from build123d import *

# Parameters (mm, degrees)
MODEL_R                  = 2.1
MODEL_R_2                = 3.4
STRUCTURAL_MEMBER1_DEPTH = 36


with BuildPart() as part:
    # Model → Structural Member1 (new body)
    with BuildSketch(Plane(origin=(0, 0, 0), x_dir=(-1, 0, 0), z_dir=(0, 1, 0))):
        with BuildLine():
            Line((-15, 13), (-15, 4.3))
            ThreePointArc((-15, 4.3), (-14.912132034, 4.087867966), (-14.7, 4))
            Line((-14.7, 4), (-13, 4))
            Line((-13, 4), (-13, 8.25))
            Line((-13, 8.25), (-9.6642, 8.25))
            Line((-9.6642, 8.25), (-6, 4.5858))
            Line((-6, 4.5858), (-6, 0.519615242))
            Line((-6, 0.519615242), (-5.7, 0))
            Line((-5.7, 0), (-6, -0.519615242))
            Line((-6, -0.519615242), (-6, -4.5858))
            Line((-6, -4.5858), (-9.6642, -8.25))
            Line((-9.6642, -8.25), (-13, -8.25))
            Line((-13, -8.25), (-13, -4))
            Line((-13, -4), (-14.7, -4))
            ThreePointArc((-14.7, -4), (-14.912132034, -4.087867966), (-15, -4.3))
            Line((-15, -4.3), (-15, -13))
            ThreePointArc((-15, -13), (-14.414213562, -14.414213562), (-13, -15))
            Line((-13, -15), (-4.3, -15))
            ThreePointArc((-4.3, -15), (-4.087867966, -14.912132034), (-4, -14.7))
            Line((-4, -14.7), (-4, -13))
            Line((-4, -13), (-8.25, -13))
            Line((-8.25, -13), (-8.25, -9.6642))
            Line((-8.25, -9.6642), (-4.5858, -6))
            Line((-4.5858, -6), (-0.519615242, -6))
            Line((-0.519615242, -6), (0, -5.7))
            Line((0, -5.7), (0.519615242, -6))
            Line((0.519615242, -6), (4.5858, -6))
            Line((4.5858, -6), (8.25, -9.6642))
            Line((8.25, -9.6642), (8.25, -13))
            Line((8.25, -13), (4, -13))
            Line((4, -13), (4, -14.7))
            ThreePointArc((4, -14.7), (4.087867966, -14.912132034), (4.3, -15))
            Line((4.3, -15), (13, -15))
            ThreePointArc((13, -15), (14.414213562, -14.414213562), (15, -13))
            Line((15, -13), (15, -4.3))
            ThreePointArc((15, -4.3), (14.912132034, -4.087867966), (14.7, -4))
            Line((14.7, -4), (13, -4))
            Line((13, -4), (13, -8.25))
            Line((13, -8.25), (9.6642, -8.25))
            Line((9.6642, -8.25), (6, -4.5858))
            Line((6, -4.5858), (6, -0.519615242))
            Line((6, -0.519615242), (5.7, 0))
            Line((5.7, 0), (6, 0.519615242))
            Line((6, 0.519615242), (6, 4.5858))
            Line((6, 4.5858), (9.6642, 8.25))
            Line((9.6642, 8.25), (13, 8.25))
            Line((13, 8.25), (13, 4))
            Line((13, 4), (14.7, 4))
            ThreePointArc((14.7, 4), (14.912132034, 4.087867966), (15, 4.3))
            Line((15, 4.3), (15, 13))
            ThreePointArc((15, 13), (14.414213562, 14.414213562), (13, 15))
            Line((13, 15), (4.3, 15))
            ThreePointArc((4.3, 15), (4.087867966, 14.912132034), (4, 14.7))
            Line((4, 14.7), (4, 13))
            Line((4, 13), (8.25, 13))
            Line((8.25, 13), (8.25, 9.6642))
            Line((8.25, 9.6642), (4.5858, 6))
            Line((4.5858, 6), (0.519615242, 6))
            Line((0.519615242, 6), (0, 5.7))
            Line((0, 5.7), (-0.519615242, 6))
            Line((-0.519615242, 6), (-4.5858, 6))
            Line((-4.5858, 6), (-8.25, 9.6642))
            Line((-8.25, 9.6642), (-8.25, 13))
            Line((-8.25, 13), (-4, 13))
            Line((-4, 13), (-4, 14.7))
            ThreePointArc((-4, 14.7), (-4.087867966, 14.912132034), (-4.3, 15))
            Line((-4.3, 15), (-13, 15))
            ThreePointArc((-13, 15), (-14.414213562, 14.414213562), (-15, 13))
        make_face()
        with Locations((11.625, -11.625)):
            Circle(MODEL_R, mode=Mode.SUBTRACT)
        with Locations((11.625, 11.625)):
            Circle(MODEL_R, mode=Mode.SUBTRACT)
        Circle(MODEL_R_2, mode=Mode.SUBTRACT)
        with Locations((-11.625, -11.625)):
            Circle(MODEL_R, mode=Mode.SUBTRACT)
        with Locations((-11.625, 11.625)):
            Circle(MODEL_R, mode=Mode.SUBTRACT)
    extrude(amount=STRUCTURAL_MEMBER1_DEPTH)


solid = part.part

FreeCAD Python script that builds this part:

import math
import FreeCAD as App
import Part
import Sketcher
from FreeCAD import Vector
Q = App.Units.Quantity

doc = App.newDocument("Part")
body = doc.addObject("PartDesign::Body", "Body")

sketch1 = doc.addObject("Sketcher::SketchObject", "Sketch")
body.addObject(sketch1)
sketch1.AttachmentSupport = (doc.XZ_Plane, [""])
sketch1.MapMode = "FlatFace"
sketch1.addGeometry([
    Part.LineSegment(Vector(15, 13, 0), Vector(15, 4.3, 0)),
    Part.ArcOfCircle(Part.Circle(Vector(14.7, 4.3, 0), Vector(0, 0, 1), 0.3), math.radians(-90), math.radians(0)),
    Part.LineSegment(Vector(14.7, 4, 0), Vector(13, 4, 0)),
    Part.LineSegment(Vector(13, 4, 0), Vector(13, 8.25, 0)),
    Part.LineSegment(Vector(13, 8.25, 0), Vector(9.66, 8.25, 0)),
    Part.LineSegment(Vector(9.66, 8.25, 0), Vector(6, 4.59, 0)),
    Part.LineSegment(Vector(6, 4.59, 0), Vector(6, 0.52, 0)),
    Part.LineSegment(Vector(6, 0.52, 0), Vector(5.7, 0, 0)),
    Part.LineSegment(Vector(5.7, 0, 0), Vector(6, -0.52, 0)),
    Part.LineSegment(Vector(6, -0.52, 0), Vector(6, -4.59, 0)),
    Part.LineSegment(Vector(6, -4.59, 0), Vector(9.66, -8.25, 0)),
    Part.LineSegment(Vector(9.66, -8.25, 0), Vector(13, -8.25, 0)),
    Part.LineSegment(Vector(13, -8.25, 0), Vector(13, -4, 0)),
    Part.LineSegment(Vector(13, -4, 0), Vector(14.7, -4, 0)),
    Part.ArcOfCircle(Part.Circle(Vector(14.7, -4.3, 0), Vector(0, 0, 1), 0.3), math.radians(0), math.radians(90)),
    Part.LineSegment(Vector(15, -4.3, 0), Vector(15, -13, 0)),
    Part.ArcOfCircle(Part.Circle(Vector(13, -13, 0), Vector(0, 0, 1), 2), math.radians(-90), math.radians(0)),
    Part.LineSegment(Vector(13, -15, 0), Vector(4.3, -15, 0)),
    Part.ArcOfCircle(Part.Circle(Vector(4.3, -14.7, 0), Vector(0, 0, 1), 0.3), math.radians(-180), math.radians(-90)),
    Part.LineSegment(Vector(4, -14.7, 0), Vector(4, -13, 0)),
    Part.LineSegment(Vector(4, -13, 0), Vector(8.25, -13, 0)),
    Part.LineSegment(Vector(8.25, -13, 0), Vector(8.25, -9.66, 0)),
    Part.LineSegment(Vector(8.25, -9.66, 0), Vector(4.59, -6, 0)),
    Part.LineSegment(Vector(4.59, -6, 0), Vector(0.52, -6, 0)),
    Part.LineSegment(Vector(0.52, -6, 0), Vector(0, -5.7, 0)),
    Part.LineSegment(Vector(0, -5.7, 0), Vector(-0.52, -6, 0)),
    Part.LineSegment(Vector(-0.52, -6, 0), Vector(-4.59, -6, 0)),
    Part.LineSegment(Vector(-4.59, -6, 0), Vector(-8.25, -9.66, 0)),
    Part.LineSegment(Vector(-8.25, -9.66, 0), Vector(-8.25, -13, 0)),
    Part.LineSegment(Vector(-8.25, -13, 0), Vector(-4, -13, 0)),
    Part.LineSegment(Vector(-4, -13, 0), Vector(-4, -14.7, 0)),
    Part.ArcOfCircle(Part.Circle(Vector(-4.3, -14.7, 0), Vector(0, 0, 1), 0.3), math.radians(-90), math.radians(0)),
    Part.LineSegment(Vector(-4.3, -15, 0), Vector(-13, -15, 0)),
    Part.ArcOfCircle(Part.Circle(Vector(-13, -13, 0), Vector(0, 0, 1), 2), math.radians(-180), math.radians(-90)),
    Part.LineSegment(Vector(-15, -13, 0), Vector(-15, -4.3, 0)),
    Part.ArcOfCircle(Part.Circle(Vector(-14.7, -4.3, 0), Vector(0, 0, 1), 0.3), math.radians(90), math.radians(180)),
    Part.LineSegment(Vector(-14.7, -4, 0), Vector(-13, -4, 0)),
    Part.LineSegment(Vector(-13, -4, 0), Vector(-13, -8.25, 0)),
    Part.LineSegment(Vector(-13, -8.25, 0), Vector(-9.66, -8.25, 0)),
    Part.LineSegment(Vector(-9.66, -8.25, 0), Vector(-6, -4.59, 0)),
    Part.LineSegment(Vector(-6, -4.59, 0), Vector(-6, -0.52, 0)),
    Part.LineSegment(Vector(-6, -0.52, 0), Vector(-5.7, 0, 0)),
    Part.LineSegment(Vector(-5.7, 0, 0), Vector(-6, 0.52, 0)),
    Part.LineSegment(Vector(-6, 0.52, 0), Vector(-6, 4.59, 0)),
    Part.LineSegment(Vector(-6, 4.59, 0), Vector(-9.66, 8.25, 0)),
    Part.LineSegment(Vector(-9.66, 8.25, 0), Vector(-13, 8.25, 0)),
    Part.LineSegment(Vector(-13, 8.25, 0), Vector(-13, 4, 0)),
    Part.LineSegment(Vector(-13, 4, 0), Vector(-14.7, 4, 0)),
    Part.ArcOfCircle(Part.Circle(Vector(-14.7, 4.3, 0), Vector(0, 0, 1), 0.3), math.radians(-180), math.radians(-90)),
    Part.LineSegment(Vector(-15, 4.3, 0), Vector(-15, 13, 0)),
    Part.ArcOfCircle(Part.Circle(Vector(-13, 13, 0), Vector(0, 0, 1), 2), math.radians(90), math.radians(180)),
    Part.LineSegment(Vector(-13, 15, 0), Vector(-4.3, 15, 0)),
    Part.ArcOfCircle(Part.Circle(Vector(-4.3, 14.7, 0), Vector(0, 0, 1), 0.3), math.radians(0), math.radians(90)),
    Part.LineSegment(Vector(-4, 14.7, 0), Vector(-4, 13, 0)),
    Part.LineSegment(Vector(-4, 13, 0), Vector(-8.25, 13, 0)),
    Part.LineSegment(Vector(-8.25, 13, 0), Vector(-8.25, 9.66, 0)),
    Part.LineSegment(Vector(-8.25, 9.66, 0), Vector(-4.59, 6, 0)),
    Part.LineSegment(Vector(-4.59, 6, 0), Vector(-0.52, 6, 0)),
    Part.LineSegment(Vector(-0.52, 6, 0), Vector(0, 5.7, 0)),
    Part.LineSegment(Vector(0, 5.7, 0), Vector(0.52, 6, 0)),
    Part.LineSegment(Vector(0.52, 6, 0), Vector(4.59, 6, 0)),
    Part.LineSegment(Vector(4.59, 6, 0), Vector(8.25, 9.66, 0)),
    Part.LineSegment(Vector(8.25, 9.66, 0), Vector(8.25, 13, 0)),
    Part.LineSegment(Vector(8.25, 13, 0), Vector(4, 13, 0)),
    Part.LineSegment(Vector(4, 13, 0), Vector(4, 14.7, 0)),
    Part.ArcOfCircle(Part.Circle(Vector(4.3, 14.7, 0), Vector(0, 0, 1), 0.3), math.radians(90), math.radians(180)),
    Part.LineSegment(Vector(4.3, 15, 0), Vector(13, 15, 0)),
    Part.ArcOfCircle(Part.Circle(Vector(13, 13, 0), Vector(0, 0, 1), 2), math.radians(0), math.radians(90)),
    Part.Circle(Vector(11.62, -11.62, 0), Vector(0, 0, 1), 2.1),
    Part.Circle(Vector(-11.62, -11.62, 0), Vector(0, 0, 1), 2.1),
    Part.Circle(Vector(11.62, 11.62, 0), Vector(0, 0, 1), 2.1),
    Part.Circle(Vector(0, 0, 0), Vector(0, 0, 1), 3.4),
    Part.Circle(Vector(-11.62, 11.62, 0), Vector(0, 0, 1), 2.1),
], False)
sketch1.addConstraint([
    Sketcher.Constraint("Tangent", 0, 2, 1, 2),
    Sketcher.Constraint("Tangent", 1, 1, 2, 1),
    Sketcher.Constraint("Coincident", 2, 2, 3, 1),
    Sketcher.Constraint("Coincident", 3, 2, 4, 1),
    Sketcher.Constraint("Coincident", 4, 2, 5, 1),
    Sketcher.Constraint("Coincident", 5, 2, 6, 1),
    Sketcher.Constraint("Coincident", 6, 2, 7, 1),
    Sketcher.Constraint("Coincident", 7, 2, 8, 1),
    Sketcher.Constraint("Coincident", 8, 2, 9, 1),
    Sketcher.Constraint("Coincident", 9, 2, 10, 1),
    Sketcher.Constraint("Coincident", 10, 2, 11, 1),
    Sketcher.Constraint("Coincident", 11, 2, 12, 1),
    Sketcher.Constraint("Coincident", 12, 2, 13, 1),
    Sketcher.Constraint("Tangent", 13, 2, 14, 2),
    Sketcher.Constraint("Tangent", 14, 1, 15, 1),
    Sketcher.Constraint("Tangent", 15, 2, 16, 2),
    Sketcher.Constraint("Tangent", 16, 1, 17, 1),
    Sketcher.Constraint("Tangent", 17, 2, 18, 2),
    Sketcher.Constraint("Tangent", 18, 1, 19, 1),
    Sketcher.Constraint("Coincident", 19, 2, 20, 1),
    Sketcher.Constraint("Coincident", 20, 2, 21, 1),
    Sketcher.Constraint("Coincident", 21, 2, 22, 1),
    Sketcher.Constraint("Coincident", 22, 2, 23, 1),
    Sketcher.Constraint("Coincident", 23, 2, 24, 1),
    Sketcher.Constraint("Coincident", 24, 2, 25, 1),
    Sketcher.Constraint("Coincident", 25, 2, 26, 1),
    Sketcher.Constraint("Coincident", 26, 2, 27, 1),
    Sketcher.Constraint("Coincident", 27, 2, 28, 1),
    Sketcher.Constraint("Coincident", 28, 2, 29, 1),
    Sketcher.Constraint("Coincident", 29, 2, 30, 1),
    Sketcher.Constraint("Tangent", 30, 2, 31, 2),
    Sketcher.Constraint("Tangent", 31, 1, 32, 1),
    Sketcher.Constraint("Tangent", 32, 2, 33, 2),
    Sketcher.Constraint("Tangent", 33, 1, 34, 1),
    Sketcher.Constraint("Tangent", 34, 2, 35, 2),
    Sketcher.Constraint("Tangent", 35, 1, 36, 1),
    Sketcher.Constraint("Coincident", 36, 2, 37, 1),
    Sketcher.Constraint("Coincident", 37, 2, 38, 1),
    Sketcher.Constraint("Coincident", 38, 2, 39, 1),
    Sketcher.Constraint("Coincident", 39, 2, 40, 1),
    Sketcher.Constraint("Coincident", 40, 2, 41, 1),
    Sketcher.Constraint("Coincident", 41, 2, 42, 1),
    Sketcher.Constraint("Coincident", 42, 2, 43, 1),
    Sketcher.Constraint("Coincident", 43, 2, 44, 1),
    Sketcher.Constraint("Coincident", 44, 2, 45, 1),
    Sketcher.Constraint("Coincident", 45, 2, 46, 1),
    Sketcher.Constraint("Coincident", 46, 2, 47, 1),
    Sketcher.Constraint("Tangent", 47, 2, 48, 2),
    Sketcher.Constraint("Tangent", 48, 1, 49, 1),
    Sketcher.Constraint("Tangent", 49, 2, 50, 2),
    Sketcher.Constraint("Tangent", 50, 1, 51, 1),
    Sketcher.Constraint("Tangent", 51, 2, 52, 2),
    Sketcher.Constraint("Tangent", 52, 1, 53, 1),
    Sketcher.Constraint("Coincident", 53, 2, 54, 1),
    Sketcher.Constraint("Coincident", 54, 2, 55, 1),
    Sketcher.Constraint("Coincident", 55, 2, 56, 1),
    Sketcher.Constraint("Coincident", 56, 2, 57, 1),
    Sketcher.Constraint("Coincident", 57, 2, 58, 1),
    Sketcher.Constraint("Coincident", 58, 2, 59, 1),
    Sketcher.Constraint("Coincident", 59, 2, 60, 1),
    Sketcher.Constraint("Coincident", 60, 2, 61, 1),
    Sketcher.Constraint("Coincident", 61, 2, 62, 1),
    Sketcher.Constraint("Coincident", 62, 2, 63, 1),
    Sketcher.Constraint("Coincident", 63, 2, 64, 1),
    Sketcher.Constraint("Tangent", 64, 2, 65, 2),
    Sketcher.Constraint("Tangent", 65, 1, 66, 1),
    Sketcher.Constraint("Tangent", 66, 2, 67, 2),
    Sketcher.Constraint("Tangent", 67, 1, 0, 1),
    Sketcher.Constraint("Vertical", 0),
    Sketcher.Constraint("Horizontal", 2),
    Sketcher.Constraint("Vertical", 3),
    Sketcher.Constraint("Horizontal", 4),
    Sketcher.Constraint("Vertical", 6),
    Sketcher.Constraint("Vertical", 9),
    Sketcher.Constraint("Horizontal", 11),
    Sketcher.Constraint("Vertical", 12),
    Sketcher.Constraint("Horizontal", 13),
    Sketcher.Constraint("Vertical", 15),
    Sketcher.Constraint("Horizontal", 17),
    Sketcher.Constraint("Vertical", 19),
    Sketcher.Constraint("Horizontal", 20),
    Sketcher.Constraint("Vertical", 21),
    Sketcher.Constraint("Horizontal", 23),
    Sketcher.Constraint("Horizontal", 26),
    Sketcher.Constraint("Vertical", 28),
    Sketcher.Constraint("Horizontal", 29),
    Sketcher.Constraint("Vertical", 30),
    Sketcher.Constraint("Horizontal", 32),
    Sketcher.Constraint("Vertical", 34),
    Sketcher.Constraint("Horizontal", 36),
    Sketcher.Constraint("Vertical", 37),
    Sketcher.Constraint("Horizontal", 38),
    Sketcher.Constraint("Vertical", 40),
    Sketcher.Constraint("Vertical", 43),
    Sketcher.Constraint("Horizontal", 45),
    Sketcher.Constraint("Vertical", 46),
    Sketcher.Constraint("Horizontal", 47),
    Sketcher.Constraint("Vertical", 49),
    Sketcher.Constraint("Horizontal", 51),
    Sketcher.Constraint("Vertical", 53),
    Sketcher.Constraint("Horizontal", 54),
    Sketcher.Constraint("Vertical", 55),
    Sketcher.Constraint("Horizontal", 57),
    Sketcher.Constraint("Horizontal", 60),
    Sketcher.Constraint("Vertical", 62),
    Sketcher.Constraint("Horizontal", 63),
    Sketcher.Constraint("Vertical", 64),
    Sketcher.Constraint("Horizontal", 66),
    Sketcher.Constraint("Coincident", 71, 3, -1, 1),
    Sketcher.Constraint("Equal", 1, 14),
    Sketcher.Constraint("Equal", 14, 18),
    Sketcher.Constraint("Equal", 18, 31),
    Sketcher.Constraint("Equal", 16, 33),
    Sketcher.Constraint("Equal", 31, 35),
    Sketcher.Constraint("Equal", 35, 48),
    Sketcher.Constraint("Equal", 33, 50),
    Sketcher.Constraint("Equal", 48, 52),
    Sketcher.Constraint("Equal", 52, 65),
    Sketcher.Constraint("Equal", 50, 67),
    Sketcher.Constraint("Equal", 68, 69),
    Sketcher.Constraint("Equal", 69, 70),
    Sketcher.Constraint("Equal", 70, 72),
    Sketcher.Constraint("Symmetric", 1, 3, 35, 3, -1, 1),
    Sketcher.Constraint("Symmetric", 14, 3, 48, 3, -1, 1),
    Sketcher.Constraint("Symmetric", 18, 3, 52, 3, -1, 1),
    Sketcher.Constraint("Symmetric", 31, 3, 65, 3, -1, 1),
    Sketcher.Constraint("Symmetric", 69, 3, 70, 3, -1, 1),
    Sketcher.Constraint("Symmetric", 68, 3, 72, 3, -1, 1),
    Sketcher.Constraint("Symmetric", 3, 2, 37, 2, -1, 1),
    Sketcher.Constraint("Symmetric", 5, 2, 39, 2, -1, 1),
    Sketcher.Constraint("Symmetric", 7, 2, 41, 2, -1, 1),
    Sketcher.Constraint("Symmetric", 8, 2, 42, 2, -1, 1),
    Sketcher.Constraint("Symmetric", 10, 2, 44, 2, -1, 1),
    Sketcher.Constraint("Symmetric", 20, 2, 54, 2, -1, 1),
    Sketcher.Constraint("Symmetric", 22, 2, 56, 2, -1, 1),
    Sketcher.Constraint("Symmetric", 24, 2, 58, 2, -1, 1),
    Sketcher.Constraint("Symmetric", 25, 2, 59, 2, -1, 1),
    Sketcher.Constraint("Symmetric", 27, 2, 61, 2, -1, 1),
    Sketcher.Constraint("Symmetric", 18, 3, 31, 3, -2),
    Sketcher.Constraint("Symmetric", 14, 3, 35, 3, -2),
    Sketcher.Constraint("Symmetric", 68, 3, 69, 3, -2),
    Sketcher.Constraint("Symmetric", 23, 2, 25, 2, -2),
    Sketcher.Constraint("Symmetric", 21, 2, 27, 2, -2),
    Sketcher.Constraint("Symmetric", 11, 2, 37, 2, -2),
    Sketcher.Constraint("Symmetric", 9, 2, 39, 2, -2),
    Sketcher.Constraint("PointOnObject", 7, 2, -1),
    Sketcher.Constraint("PointOnObject", 24, 2, -2),
    Sketcher.Constraint("Perpendicular", 5, 10),
    Sketcher.Constraint("Parallel", 10, 22),
    Sketcher.Constraint("Perpendicular", 7, 24),
    Sketcher.Constraint("Perpendicular", 8, 25),
    Sketcher.Constraint("Perpendicular", 22, 27),
    Sketcher.Constraint("Parallel", 27, 39),
    Sketcher.Constraint("Perpendicular", 24, 41),
    Sketcher.Constraint("Perpendicular", 39, 44),
    Sketcher.Constraint("Parallel", 44, 56),
    Sketcher.Constraint("Perpendicular", 41, 58),
    Sketcher.Constraint("Perpendicular", 56, 61),
    Sketcher.Constraint("Horizontal", 15, 2, 19, 2),
    Sketcher.Constraint("Horizontal", 20, 2, 28, 2),
    Sketcher.Constraint("Horizontal", 54, 2, 62, 2),
    Sketcher.Constraint("Vertical", 67, 3, 2, 2),
    Sketcher.Constraint("Vertical", 4, 2, 10, 2),
    Sketcher.Constraint("Vertical", 37, 2, 45, 2),
    Sketcher.Constraint("Equal", 66, 0),
    Sketcher.Constraint("Equal", 63, 3),
    Sketcher.Constraint("Equal", 60, 6),
    Sketcher.Constraint("Equal", 45, 21),
    Sketcher.Constraint("Equal", 10, 22),
    Sketcher.Constraint("Equal", 8, 24),
    Sketcher.Constraint("Radius", 16, 2.0),
    Sketcher.Constraint("Diameter", 68, 4.2),
    Sketcher.Constraint("Diameter", 71, 6.8),
    Sketcher.Constraint("Radius", 1, 0.3),
    Sketcher.Constraint("Angle", 7, Q("-120 deg")),
    Sketcher.Constraint("DistanceX", 17, 2, 17, 1, 8.7),
    Sketcher.Constraint("DistanceX", -1, 1, 16, 3, 13.0),
    Sketcher.Constraint("DistanceX", -1, 1, 5, 2, 6.0),
    Sketcher.Constraint("Distance", 7, 0.6),
    Sketcher.Constraint("DistanceX", 20, 1, 20, 2, 4.25),
    Sketcher.Constraint("DistanceX", 4, 2, 4, 1, 3.3358),
    Sketcher.Constraint("DistanceX", -1, 1, 68, 3, 11.625),
    Sketcher.Constraint("DistanceY", 68, 3, -1, 1, 11.625),
])
pad1 = doc.addObject("PartDesign::Pad", "Pad")
body.addObject(pad1)
pad1.Profile = sketch1
pad1.Length = 36
pad1.Reversed = True

doc.recompute()
